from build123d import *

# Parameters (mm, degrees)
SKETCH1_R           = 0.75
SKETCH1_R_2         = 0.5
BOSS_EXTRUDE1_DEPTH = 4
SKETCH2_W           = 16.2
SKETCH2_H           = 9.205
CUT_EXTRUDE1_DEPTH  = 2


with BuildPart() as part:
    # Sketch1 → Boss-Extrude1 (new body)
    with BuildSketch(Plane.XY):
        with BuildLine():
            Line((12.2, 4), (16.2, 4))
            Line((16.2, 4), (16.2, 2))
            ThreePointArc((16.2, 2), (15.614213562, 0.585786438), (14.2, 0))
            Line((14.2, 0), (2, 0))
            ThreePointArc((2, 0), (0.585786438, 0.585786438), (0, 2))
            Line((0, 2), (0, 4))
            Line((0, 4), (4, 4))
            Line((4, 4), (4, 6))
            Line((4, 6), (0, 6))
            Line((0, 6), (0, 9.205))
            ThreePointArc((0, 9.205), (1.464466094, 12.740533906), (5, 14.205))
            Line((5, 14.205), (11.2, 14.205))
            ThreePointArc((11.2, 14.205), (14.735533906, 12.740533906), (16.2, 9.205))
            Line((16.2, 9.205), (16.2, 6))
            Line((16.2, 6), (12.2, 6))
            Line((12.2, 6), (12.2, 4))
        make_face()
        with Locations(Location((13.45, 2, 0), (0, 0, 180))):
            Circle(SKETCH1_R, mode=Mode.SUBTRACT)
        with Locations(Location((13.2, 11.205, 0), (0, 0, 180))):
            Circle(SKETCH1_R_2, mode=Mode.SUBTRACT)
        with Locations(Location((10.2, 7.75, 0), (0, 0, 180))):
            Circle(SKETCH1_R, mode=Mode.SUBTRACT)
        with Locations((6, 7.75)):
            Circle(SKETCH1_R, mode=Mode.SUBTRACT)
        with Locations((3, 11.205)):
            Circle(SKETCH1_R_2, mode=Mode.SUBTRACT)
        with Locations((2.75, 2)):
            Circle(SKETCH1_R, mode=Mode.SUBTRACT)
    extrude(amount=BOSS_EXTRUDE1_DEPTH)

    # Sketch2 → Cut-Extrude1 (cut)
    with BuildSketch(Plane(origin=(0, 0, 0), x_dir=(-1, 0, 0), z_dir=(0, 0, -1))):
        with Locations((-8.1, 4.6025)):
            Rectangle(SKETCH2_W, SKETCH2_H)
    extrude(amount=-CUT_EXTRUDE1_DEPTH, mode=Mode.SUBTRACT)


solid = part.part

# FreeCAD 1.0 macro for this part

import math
import FreeCAD as App
import Part
import Sketcher

V = App.Vector
Q = App.Units.Quantity


def add_polygon(sketch, points):
    """Adds a closed chain of lines whose ends are joined by coincident constraints."""
    first, n = sketch.GeometryCount, len(points)
    for a, b in zip(points, points[1:] + points[:1]):
        sketch.addGeometry(Part.LineSegment(App.Vector(*a, 0), App.Vector(*b, 0)), False)
    for i in range(n):
        sketch.addConstraint(Sketcher.Constraint("Coincident", first + i, 2, first + (i + 1) % n, 1))

doc = App.newDocument("Part")
body = doc.addObject("PartDesign::Body", "Body")

# Sketch on XY plane
sketch1 = body.newObject("Sketcher::SketchObject", "Sketch")
sketch1.AttachmentSupport = (doc.getObject("XY_Plane"), [""])
sketch1.MapMode = "FlatFace"
sketch1.addGeometry([
    Part.LineSegment(V(16.2, 4, 0), V(12.2, 4, 0)),  # 0
    Part.LineSegment(V(12.2, 4, 0), V(12.2, 6, 0)),  # 1
    Part.LineSegment(V(12.2, 6, 0), V(16.2, 6, 0)),  # 2
    Part.LineSegment(V(16.2, 6, 0), V(16.2, 9.2, 0)),  # 3
    Part.ArcOfCircle(Part.Circle(V(11.2, 9.2, 0), V(0, 0, 1), 5), math.radians(0), math.radians(90)),  # 4
    Part.LineSegment(V(11.2, 14.2, 0), V(5, 14.2, 0)),  # 5
    Part.ArcOfCircle(Part.Circle(V(5, 9.2, 0), V(0, 0, 1), 5), math.radians(90), math.radians(180)),  # 6
    Part.LineSegment(V(0, 9.2, 0), V(0, 6, 0)),  # 7
    Part.LineSegment(V(0, 6, 0), V(4, 6, 0)),  # 8
    Part.LineSegment(V(4, 6, 0), V(4, 4, 0)),  # 9
    Part.LineSegment(V(4, 4, 0), V(0, 4, 0)),  # 10
    Part.LineSegment(V(0, 4, 0), V(0, 2, 0)),  # 11
    Part.ArcOfCircle(Part.Circle(V(2, 2, 0), V(0, 0, 1), 2), math.radians(-180), math.radians(-90)),  # 12
    Part.LineSegment(V(2, 0, 0), V(14.2, 0, 0)),  # 13
    Part.ArcOfCircle(Part.Circle(V(14.2, 2, 0), V(0, 0, 1), 2), math.radians(-90), math.radians(0)),  # 14
    Part.LineSegment(V(16.2, 2, 0), V(16.2, 4, 0)),  # 15
    Part.Circle(V(13.4, 2, 0), V(0, 0, 1), 0.8),  # 16
    Part.Circle(V(2.8, 2, 0), V(0, 0, 1), 0.8),  # 17
    Part.Circle(V(10.2, 7.8, 0), V(0, 0, 1), 0.8),  # 18
    Part.Circle(V(13.2, 11.2, 0), V(0, 0, 1), 0.5),  # 19
    Part.Circle(V(6, 7.8, 0), V(0, 0, 1), 0.8),  # 20
    Part.Circle(V(3, 11.2, 0), V(0, 0, 1), 0.5),  # 21
], False)
sketch1.addConstraint([
    Sketcher.Constraint("Coincident", 0, 2, 1, 1),
    Sketcher.Constraint("Coincident", 1, 2, 2, 1),
    Sketcher.Constraint("Coincident", 2, 2, 3, 1),
    Sketcher.Constraint("Tangent", 3, 2, 4, 1),
    Sketcher.Constraint("Tangent", 4, 2, 5, 1),
    Sketcher.Constraint("Tangent", 5, 2, 6, 1),
    Sketcher.Constraint("Tangent", 6, 2, 7, 1),
    Sketcher.Constraint("Coincident", 7, 2, 8, 1),
    Sketcher.Constraint("Coincident", 8, 2, 9, 1),
    Sketcher.Constraint("Coincident", 9, 2, 10, 1),
    Sketcher.Constraint("Coincident", 10, 2, 11, 1),
    Sketcher.Constraint("Tangent", 11, 2, 12, 1),
    Sketcher.Constraint("Tangent", 12, 2, 13, 1),
    Sketcher.Constraint("Tangent", 13, 2, 14, 1),
    Sketcher.Constraint("Tangent", 14, 2, 15, 1),
    Sketcher.Constraint("Coincident", 15, 2, 0, 1),
    Sketcher.Constraint("Horizontal", 0),
    Sketcher.Constraint("Vertical", 1),
    Sketcher.Constraint("Horizontal", 2),
    Sketcher.Constraint("Vertical", 3),
    Sketcher.Constraint("Horizontal", 5),
    Sketcher.Constraint("Vertical", 7),
    Sketcher.Constraint("Horizontal", 8),
    Sketcher.Constraint("Vertical", 9),
    Sketcher.Constraint("Horizontal", 10),
    Sketcher.Constraint("Vertical", 11),
    Sketcher.Constraint("Horizontal", 13),
    Sketcher.Constraint("Vertical", 15),
    Sketcher.Constraint("Equal", 4, 6),
    Sketcher.Constraint("Equal", 12, 14),
    Sketcher.Constraint("Equal", 16, 17),
    Sketcher.Constraint("Equal", 17, 18),
    Sketcher.Constraint("Equal", 18, 20),
    Sketcher.Constraint("Equal", 19, 21),
    Sketcher.Constraint("PointOnObject", 6, 2, -2),
    Sketcher.Constraint("PointOnObject", 10, 2, -2),
    Sketcher.Constraint("PointOnObject", 12, 2, -1),
    Sketcher.Constraint("Horizontal", 14, 3, 16, 3),
    Sketcher.Constraint("Horizontal", 16, 3, 17, 3),
    Sketcher.Constraint("Horizontal", 18, 3, 20, 3),
    Sketcher.Constraint("Horizontal", 19, 3, 21, 3),
    Sketcher.Constraint("Horizontal", 2, 2, 7, 2),
    Sketcher.Constraint("Horizontal", 0, 2, 9, 2),
    Sketcher.Constraint("Vertical", 3, 2, 14, 2),
    Sketcher.Constraint("Equal", 2, 8),
    Sketcher.Constraint("Equal", 9, 11),
    Sketcher.Constraint("Diameter", 19, Q("1 mm")),
    Sketcher.Constraint("Radius", 4, Q("5 mm")),
    Sketcher.Constraint("Radius", 12, Q("2 mm")),
    Sketcher.Constraint("Diameter", 16, Q("1.5 mm")),
    Sketcher.Constraint("DistanceX", 0, 2, 0, 1, Q("4 mm")),
    Sketcher.Constraint("DistanceY", 1, 1, 1, 2, Q("2 mm")),
    Sketcher.Constraint("DistanceX", 5, 2, 5, 1, Q("6.2 mm")),
    Sketcher.Constraint("DistanceX", -1, 1, 20, 3, Q("6 mm")),
    Sketcher.Constraint("DistanceX", -1, 1, 21, 3, Q("3 mm")),
    Sketcher.Constraint("DistanceX", 18, 3, 4, 3, Q("1 mm")),
    Sketcher.Constraint("DistanceX", 4, 3, 19, 3, Q("2 mm")),
    Sketcher.Constraint("DistanceY", 4, 3, 19, 3, Q("2 mm")),
    Sketcher.Constraint("DistanceX", 17, 3, 16, 3, Q("10.7 mm")),
    Sketcher.Constraint("DistanceY", 3, 1, 3, 2, Q("3.205 mm")),
    Sketcher.Constraint("DistanceX", -1, 1, 16, 3, Q("13.45 mm")),
    Sketcher.Constraint("DistanceY", -1, 1, 18, 3, Q("7.75 mm")),
])
pad1 = body.newObject("PartDesign::Pad", "Pad")
pad1.Profile = sketch1
pad1.Length = 4

# Sketch on XY plane
sketch2 = body.newObject("Sketcher::SketchObject", "Sketch001")
sketch2.AttachmentSupport = (doc.getObject("XY_Plane"), [""])
sketch2.MapMode = "FlatFace"
add_polygon(sketch2, [(16, 9), (16, 0), (0, 0), (0, 9)])  # lines 0-3
sketch2.addConstraint([
    Sketcher.Constraint("Vertical", 0),
    Sketcher.Constraint("Horizontal", 1),
    Sketcher.Constraint("Vertical", 2),
    Sketcher.Constraint("Horizontal", 3),
    Sketcher.Constraint("Coincident", 1, 2, -1, 1),
    Sketcher.Constraint("DistanceX", 1, 2, 1, 1, Q("16.2 mm")),
    Sketcher.Constraint("DistanceY", 0, 2, 0, 1, Q("9.205 mm")),
])
pocket1 = body.newObject("PartDesign::Pocket", "Pocket")
pocket1.Profile = sketch2
pocket1.Length = 2
pocket1.Reversed = True

doc.recompute()
